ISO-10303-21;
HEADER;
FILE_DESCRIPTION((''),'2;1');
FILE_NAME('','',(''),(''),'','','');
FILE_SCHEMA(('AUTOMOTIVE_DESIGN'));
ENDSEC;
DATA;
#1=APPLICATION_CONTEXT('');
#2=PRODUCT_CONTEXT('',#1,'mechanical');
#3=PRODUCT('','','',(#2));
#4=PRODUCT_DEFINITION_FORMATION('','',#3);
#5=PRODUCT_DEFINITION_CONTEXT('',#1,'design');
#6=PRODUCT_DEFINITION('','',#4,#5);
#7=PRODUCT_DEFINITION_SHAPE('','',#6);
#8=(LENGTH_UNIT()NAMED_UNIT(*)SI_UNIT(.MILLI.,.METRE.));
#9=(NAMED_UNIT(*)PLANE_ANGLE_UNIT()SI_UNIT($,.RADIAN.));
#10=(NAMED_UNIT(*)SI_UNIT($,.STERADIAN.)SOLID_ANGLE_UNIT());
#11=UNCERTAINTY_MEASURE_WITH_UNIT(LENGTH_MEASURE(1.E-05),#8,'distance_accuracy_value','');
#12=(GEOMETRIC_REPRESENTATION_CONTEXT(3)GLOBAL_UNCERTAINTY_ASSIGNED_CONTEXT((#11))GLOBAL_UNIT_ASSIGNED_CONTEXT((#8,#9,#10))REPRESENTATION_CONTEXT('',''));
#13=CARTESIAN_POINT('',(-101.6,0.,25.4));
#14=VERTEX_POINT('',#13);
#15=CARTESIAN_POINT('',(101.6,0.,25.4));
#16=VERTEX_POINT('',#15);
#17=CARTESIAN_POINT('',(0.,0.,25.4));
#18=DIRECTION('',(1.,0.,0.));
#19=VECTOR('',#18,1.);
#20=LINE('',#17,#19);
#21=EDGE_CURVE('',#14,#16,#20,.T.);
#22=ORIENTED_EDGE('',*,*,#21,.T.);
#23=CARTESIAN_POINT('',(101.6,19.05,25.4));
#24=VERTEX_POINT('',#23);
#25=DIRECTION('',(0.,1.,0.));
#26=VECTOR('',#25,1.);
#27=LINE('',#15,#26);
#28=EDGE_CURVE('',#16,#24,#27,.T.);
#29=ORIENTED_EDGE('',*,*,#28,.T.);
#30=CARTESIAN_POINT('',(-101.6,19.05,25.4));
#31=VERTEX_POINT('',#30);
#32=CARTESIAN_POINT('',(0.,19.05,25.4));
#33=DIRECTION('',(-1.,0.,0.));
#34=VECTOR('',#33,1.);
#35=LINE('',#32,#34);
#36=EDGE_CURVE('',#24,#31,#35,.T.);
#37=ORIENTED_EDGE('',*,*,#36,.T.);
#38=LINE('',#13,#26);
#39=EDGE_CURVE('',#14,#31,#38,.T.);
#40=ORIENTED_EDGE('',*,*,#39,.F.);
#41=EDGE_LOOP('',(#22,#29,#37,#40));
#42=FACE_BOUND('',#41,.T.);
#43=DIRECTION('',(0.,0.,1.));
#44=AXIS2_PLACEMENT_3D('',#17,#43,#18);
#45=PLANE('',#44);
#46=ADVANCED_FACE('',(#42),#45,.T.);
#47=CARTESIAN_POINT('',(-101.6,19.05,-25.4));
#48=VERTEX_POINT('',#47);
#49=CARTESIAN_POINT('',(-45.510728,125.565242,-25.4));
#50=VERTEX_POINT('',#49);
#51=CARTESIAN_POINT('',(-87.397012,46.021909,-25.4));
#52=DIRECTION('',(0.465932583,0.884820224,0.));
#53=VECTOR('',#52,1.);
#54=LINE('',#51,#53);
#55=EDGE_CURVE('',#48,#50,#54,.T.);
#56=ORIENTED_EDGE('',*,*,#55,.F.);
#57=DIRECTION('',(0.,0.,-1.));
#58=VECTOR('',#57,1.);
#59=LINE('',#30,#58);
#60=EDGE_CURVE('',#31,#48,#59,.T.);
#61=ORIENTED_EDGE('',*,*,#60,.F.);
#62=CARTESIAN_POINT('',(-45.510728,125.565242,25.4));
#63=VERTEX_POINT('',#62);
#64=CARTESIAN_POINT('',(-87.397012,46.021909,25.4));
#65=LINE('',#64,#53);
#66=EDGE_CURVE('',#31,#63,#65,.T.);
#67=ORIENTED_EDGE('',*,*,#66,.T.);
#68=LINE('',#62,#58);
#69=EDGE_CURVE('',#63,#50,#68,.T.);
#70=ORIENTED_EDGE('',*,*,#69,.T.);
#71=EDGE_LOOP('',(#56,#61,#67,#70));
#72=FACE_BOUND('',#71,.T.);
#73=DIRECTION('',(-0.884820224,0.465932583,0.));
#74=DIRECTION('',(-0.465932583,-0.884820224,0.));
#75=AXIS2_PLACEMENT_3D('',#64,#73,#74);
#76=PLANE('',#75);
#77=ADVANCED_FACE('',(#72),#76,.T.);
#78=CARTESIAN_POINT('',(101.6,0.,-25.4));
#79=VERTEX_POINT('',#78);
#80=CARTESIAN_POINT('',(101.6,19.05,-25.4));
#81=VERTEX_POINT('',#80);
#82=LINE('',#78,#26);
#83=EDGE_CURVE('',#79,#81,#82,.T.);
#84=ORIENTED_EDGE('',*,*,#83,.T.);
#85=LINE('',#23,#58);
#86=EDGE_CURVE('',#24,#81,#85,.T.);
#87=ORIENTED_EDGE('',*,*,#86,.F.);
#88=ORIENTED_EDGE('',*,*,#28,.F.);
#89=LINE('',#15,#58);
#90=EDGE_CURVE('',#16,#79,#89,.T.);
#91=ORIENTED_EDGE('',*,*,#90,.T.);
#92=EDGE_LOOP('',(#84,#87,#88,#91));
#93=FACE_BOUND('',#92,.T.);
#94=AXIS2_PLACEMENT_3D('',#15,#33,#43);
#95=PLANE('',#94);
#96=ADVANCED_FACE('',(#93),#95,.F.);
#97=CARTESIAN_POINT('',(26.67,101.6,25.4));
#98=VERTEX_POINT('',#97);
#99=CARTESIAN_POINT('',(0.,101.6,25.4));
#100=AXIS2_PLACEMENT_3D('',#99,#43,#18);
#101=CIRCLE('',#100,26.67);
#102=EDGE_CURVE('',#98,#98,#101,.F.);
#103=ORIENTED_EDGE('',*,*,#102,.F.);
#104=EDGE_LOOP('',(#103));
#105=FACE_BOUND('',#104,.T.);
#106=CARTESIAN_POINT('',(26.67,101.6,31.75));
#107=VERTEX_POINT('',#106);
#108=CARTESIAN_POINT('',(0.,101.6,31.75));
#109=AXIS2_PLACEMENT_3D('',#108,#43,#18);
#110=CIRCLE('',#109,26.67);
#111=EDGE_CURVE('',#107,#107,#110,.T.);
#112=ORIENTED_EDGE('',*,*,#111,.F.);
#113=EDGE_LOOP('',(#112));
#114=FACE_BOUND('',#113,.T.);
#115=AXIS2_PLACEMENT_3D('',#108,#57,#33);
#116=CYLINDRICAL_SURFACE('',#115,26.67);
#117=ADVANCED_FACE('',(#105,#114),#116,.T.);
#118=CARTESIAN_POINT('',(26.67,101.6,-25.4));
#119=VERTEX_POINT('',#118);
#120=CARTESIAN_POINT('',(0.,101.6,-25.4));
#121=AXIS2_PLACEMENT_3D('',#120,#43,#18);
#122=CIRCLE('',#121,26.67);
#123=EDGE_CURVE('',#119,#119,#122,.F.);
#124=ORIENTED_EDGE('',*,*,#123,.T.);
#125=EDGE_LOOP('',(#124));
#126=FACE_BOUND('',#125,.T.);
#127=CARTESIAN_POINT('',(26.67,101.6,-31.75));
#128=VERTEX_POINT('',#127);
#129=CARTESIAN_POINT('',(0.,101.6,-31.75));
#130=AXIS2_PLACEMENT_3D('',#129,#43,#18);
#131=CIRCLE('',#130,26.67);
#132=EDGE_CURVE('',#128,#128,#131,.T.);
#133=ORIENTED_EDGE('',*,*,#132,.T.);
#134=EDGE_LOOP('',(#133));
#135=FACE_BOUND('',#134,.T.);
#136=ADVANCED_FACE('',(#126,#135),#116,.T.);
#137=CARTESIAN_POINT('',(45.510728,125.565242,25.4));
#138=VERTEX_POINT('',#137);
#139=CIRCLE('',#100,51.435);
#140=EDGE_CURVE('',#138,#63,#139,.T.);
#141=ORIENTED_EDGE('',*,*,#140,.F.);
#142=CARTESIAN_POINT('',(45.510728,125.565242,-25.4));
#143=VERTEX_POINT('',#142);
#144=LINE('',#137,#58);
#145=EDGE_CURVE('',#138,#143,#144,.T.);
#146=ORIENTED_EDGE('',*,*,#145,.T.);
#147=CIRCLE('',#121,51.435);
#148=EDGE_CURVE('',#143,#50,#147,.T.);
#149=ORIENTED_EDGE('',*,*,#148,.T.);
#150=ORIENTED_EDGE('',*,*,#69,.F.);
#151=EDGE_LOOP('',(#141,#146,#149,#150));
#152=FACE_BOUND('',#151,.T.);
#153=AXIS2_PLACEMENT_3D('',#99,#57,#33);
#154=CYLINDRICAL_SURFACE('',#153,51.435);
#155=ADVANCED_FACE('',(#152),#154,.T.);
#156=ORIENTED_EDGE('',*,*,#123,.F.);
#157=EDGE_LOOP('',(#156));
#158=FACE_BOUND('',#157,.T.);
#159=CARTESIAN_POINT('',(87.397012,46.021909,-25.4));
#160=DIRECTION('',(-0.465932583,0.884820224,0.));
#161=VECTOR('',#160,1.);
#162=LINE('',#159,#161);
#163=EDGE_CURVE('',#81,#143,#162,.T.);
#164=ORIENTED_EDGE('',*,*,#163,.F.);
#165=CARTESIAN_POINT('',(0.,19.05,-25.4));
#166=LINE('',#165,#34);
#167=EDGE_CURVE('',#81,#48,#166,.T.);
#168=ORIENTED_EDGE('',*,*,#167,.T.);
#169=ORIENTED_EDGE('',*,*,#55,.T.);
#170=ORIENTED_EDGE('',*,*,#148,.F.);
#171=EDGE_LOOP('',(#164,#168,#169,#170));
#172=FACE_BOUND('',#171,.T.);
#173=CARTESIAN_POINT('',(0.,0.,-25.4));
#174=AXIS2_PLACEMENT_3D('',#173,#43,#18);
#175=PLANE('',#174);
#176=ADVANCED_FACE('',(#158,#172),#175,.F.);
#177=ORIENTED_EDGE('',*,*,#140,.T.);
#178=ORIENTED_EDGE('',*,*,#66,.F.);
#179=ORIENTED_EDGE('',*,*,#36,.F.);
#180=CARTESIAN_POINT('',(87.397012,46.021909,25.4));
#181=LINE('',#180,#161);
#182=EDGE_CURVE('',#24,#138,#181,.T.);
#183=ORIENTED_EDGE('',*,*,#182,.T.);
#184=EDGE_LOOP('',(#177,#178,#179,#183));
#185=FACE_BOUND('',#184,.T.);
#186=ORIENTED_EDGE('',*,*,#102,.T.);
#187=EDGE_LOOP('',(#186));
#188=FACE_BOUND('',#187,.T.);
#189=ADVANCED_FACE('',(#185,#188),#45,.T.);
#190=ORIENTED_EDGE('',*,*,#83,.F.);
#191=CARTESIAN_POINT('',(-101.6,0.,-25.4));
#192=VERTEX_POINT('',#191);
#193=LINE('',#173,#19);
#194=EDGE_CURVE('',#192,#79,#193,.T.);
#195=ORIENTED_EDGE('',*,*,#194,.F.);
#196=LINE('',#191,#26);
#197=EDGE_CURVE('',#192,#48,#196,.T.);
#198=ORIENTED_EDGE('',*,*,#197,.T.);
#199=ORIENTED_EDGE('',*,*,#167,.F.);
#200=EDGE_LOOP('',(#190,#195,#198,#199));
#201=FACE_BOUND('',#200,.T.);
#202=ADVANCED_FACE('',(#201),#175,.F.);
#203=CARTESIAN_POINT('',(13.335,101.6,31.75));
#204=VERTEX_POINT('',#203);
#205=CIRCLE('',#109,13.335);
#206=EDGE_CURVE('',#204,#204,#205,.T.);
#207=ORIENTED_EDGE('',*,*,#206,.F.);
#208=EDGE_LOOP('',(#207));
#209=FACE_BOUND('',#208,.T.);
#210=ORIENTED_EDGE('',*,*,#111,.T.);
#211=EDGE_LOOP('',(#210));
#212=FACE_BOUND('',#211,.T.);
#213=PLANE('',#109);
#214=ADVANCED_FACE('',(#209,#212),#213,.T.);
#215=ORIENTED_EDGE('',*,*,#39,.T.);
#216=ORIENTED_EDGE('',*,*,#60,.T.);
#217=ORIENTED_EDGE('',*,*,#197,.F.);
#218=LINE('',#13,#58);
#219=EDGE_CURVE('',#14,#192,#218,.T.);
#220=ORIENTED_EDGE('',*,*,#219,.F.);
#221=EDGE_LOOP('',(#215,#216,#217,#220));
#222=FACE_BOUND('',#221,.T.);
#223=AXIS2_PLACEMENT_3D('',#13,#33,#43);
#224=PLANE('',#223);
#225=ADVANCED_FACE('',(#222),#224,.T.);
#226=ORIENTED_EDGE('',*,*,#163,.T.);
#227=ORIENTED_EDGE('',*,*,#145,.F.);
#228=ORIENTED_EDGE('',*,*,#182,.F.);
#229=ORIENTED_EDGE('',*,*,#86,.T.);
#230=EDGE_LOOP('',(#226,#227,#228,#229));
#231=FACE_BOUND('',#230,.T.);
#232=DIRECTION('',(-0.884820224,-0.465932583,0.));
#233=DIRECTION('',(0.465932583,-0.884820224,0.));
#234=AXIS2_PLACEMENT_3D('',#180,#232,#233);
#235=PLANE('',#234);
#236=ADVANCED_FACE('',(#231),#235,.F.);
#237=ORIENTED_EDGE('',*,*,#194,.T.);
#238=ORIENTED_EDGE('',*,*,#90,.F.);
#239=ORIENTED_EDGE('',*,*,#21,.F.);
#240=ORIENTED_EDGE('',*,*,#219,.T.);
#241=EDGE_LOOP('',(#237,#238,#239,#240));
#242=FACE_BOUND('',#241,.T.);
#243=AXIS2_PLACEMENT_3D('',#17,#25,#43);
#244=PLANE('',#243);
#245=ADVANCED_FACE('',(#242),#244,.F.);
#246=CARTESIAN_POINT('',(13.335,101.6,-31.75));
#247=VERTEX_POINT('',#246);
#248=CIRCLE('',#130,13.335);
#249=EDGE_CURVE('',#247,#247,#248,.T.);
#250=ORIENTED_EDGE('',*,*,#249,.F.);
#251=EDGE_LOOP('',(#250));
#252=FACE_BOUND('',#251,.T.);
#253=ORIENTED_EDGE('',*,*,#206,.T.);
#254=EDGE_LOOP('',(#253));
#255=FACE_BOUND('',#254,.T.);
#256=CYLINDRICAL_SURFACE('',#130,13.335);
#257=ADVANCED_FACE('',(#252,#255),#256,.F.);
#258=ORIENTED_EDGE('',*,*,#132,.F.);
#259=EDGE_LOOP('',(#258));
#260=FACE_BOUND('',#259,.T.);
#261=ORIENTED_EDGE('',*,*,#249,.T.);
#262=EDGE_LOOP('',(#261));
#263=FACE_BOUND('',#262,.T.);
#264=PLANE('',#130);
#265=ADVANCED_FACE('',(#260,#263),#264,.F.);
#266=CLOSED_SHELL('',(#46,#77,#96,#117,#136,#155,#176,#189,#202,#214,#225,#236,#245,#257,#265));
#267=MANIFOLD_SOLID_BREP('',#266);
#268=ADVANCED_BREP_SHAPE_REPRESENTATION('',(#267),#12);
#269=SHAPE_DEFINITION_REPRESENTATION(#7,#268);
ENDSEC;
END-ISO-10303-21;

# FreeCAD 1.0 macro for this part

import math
import FreeCAD as App
import Part
import Sketcher
from FreeCAD import Vector
Q = App.Units.Quantity

doc = App.newDocument("Part")
body = doc.addObject("PartDesign::Body", "Body")

# Sketch on XY plane
sketch1 = doc.addObject("Sketcher::SketchObject", "Sketch")
body.addObject(sketch1)
sketch1.AttachmentSupport = (doc.XY_Plane, [""])
sketch1.MapMode = "FlatFace"
sketch1.addGeometry(Part.LineSegment(Vector(-102, 0, 0), Vector(102, 0, 0)), False)
sketch1.addGeometry(Part.LineSegment(Vector(102, 0, 0), Vector(102, 19, 0)), False)
sketch1.addGeometry(Part.LineSegment(Vector(102, 19, 0), Vector(46, 126, 0)), False)
sketch1.addGeometry(Part.ArcOfCircle(Part.Circle(Vector(0, 102, 0), Vector(0, 0, 1), 51), math.radians(28), math.radians(152)), False)
sketch1.addGeometry(Part.LineSegment(Vector(-46, 126, 0), Vector(-102, 19, 0)), False)
sketch1.addGeometry(Part.LineSegment(Vector(-102, 19, 0), Vector(-102, 0, 0)), False)
sketch1.addGeometry(Part.Circle(Vector(0, 102, 0), Vector(0, 0, 1), 13), False)
sketch1.addConstraint(Sketcher.Constraint("Coincident", 0, 2, 1, 1))
sketch1.addConstraint(Sketcher.Constraint("Coincident", 1, 2, 2, 1))
sketch1.addConstraint(Sketcher.Constraint("Tangent", 2, 2, 3, 1))
sketch1.addConstraint(Sketcher.Constraint("Tangent", 3, 2, 4, 1))
sketch1.addConstraint(Sketcher.Constraint("Coincident", 4, 2, 5, 1))
sketch1.addConstraint(Sketcher.Constraint("Coincident", 5, 2, 0, 1))
sketch1.addConstraint(Sketcher.Constraint("Horizontal", 0))
sketch1.addConstraint(Sketcher.Constraint("Vertical", 1))
sketch1.addConstraint(Sketcher.Constraint("Vertical", 5))
sketch1.addConstraint(Sketcher.Constraint("Coincident", 6, 3, 3, 3))
sketch1.addConstraint(Sketcher.Constraint("Symmetric", 0, 2, 5, 2, -1, 1))
sketch1.addConstraint(Sketcher.Constraint("Symmetric", 2, 2, 3, 2, -2))
sketch1.addConstraint(Sketcher.Constraint("Diameter", 6, Q("1.05 in")))
sketch1.addConstraint(Sketcher.Constraint("DistanceX", 0, 1, 0, 2, Q("8 in")))
sketch1.addConstraint(Sketcher.Constraint("DistanceY", -1, 1, 3, 3, Q("4 in")))
sketch1.addConstraint(Sketcher.Constraint("Radius", 3, Q("2.025 in")))
sketch1.addConstraint(Sketcher.Constraint("DistanceY", 1, 1, 1, 2, Q("0.75 in")))
pad1 = doc.addObject("PartDesign::Pad", "Pad")
body.addObject(pad1)
pad1.Profile = sketch1
pad1.Length = Q("2 in")
pad1.Midplane = True

# Sketch on XY plane
sketch2 = doc.addObject("Sketcher::SketchObject", "Sketch001")
body.addObject(sketch2)
sketch2.AttachmentSupport = (doc.XY_Plane, [""])
sketch2.MapMode = "FlatFace"
sketch2.addGeometry(Part.Circle(Vector(0, 102, 0), Vector(0, 0, 1), 27), False)
sketch2.addConstraint(Sketcher.Constraint("PointOnObject", 0, 3, -2))
sketch2.addConstraint(Sketcher.Constraint("Diameter", 0, Q("2.1 in")))
sketch2.addConstraint(Sketcher.Constraint("DistanceY", -1, 1, 0, 3, Q("4 in")))
pad2 = doc.addObject("PartDesign::Pad", "Pad001")
body.addObject(pad2)
pad2.Profile = sketch2
pad2.Length = Q("2.5 in")
pad2.Midplane = True

# Sketch on XY plane
sketch3 = doc.addObject("Sketcher::SketchObject", "Sketch002")
body.addObject(sketch3)
sketch3.AttachmentSupport = (doc.XY_Plane, [""])
sketch3.MapMode = "FlatFace"
sketch3.addGeometry(Part.Circle(Vector(0, 102, 0), Vector(0, 0, 1), 13), False)
sketch3.addConstraint(Sketcher.Constraint("PointOnObject", 0, 3, -2))
sketch3.addConstraint(Sketcher.Constraint("Diameter", 0, Q("1.05 in")))
sketch3.addConstraint(Sketcher.Constraint("DistanceY", -1, 1, 0, 3, Q("4 in")))
pocket1 = doc.addObject("PartDesign::Pocket", "Pocket")
body.addObject(pocket1)
pocket1.Profile = sketch3
pocket1.Type = "ThroughAll"
pocket1.Midplane = True

doc.recompute()
